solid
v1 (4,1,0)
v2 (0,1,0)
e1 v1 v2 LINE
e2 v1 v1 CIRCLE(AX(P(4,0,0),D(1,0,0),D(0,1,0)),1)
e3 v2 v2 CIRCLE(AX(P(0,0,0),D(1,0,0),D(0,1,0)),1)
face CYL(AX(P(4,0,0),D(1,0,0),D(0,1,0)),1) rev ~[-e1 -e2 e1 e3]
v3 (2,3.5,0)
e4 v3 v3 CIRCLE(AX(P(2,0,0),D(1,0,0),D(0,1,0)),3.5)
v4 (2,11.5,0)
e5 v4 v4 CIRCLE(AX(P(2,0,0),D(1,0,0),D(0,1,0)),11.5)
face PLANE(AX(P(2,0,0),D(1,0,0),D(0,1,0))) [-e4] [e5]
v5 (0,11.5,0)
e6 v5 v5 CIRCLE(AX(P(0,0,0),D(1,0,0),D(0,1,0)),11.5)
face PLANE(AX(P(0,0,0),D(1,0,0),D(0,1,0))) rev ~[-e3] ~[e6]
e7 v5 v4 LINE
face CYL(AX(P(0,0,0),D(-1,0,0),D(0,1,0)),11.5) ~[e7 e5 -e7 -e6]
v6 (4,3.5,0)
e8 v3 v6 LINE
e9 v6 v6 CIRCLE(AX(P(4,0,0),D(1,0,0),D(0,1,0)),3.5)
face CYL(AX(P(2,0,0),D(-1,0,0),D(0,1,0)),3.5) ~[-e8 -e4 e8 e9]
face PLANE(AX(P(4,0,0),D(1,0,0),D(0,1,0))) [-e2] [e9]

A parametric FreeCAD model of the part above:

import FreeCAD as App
import Part
import Sketcher

doc = App.newDocument("Part")
params = doc.addObject("Spreadsheet::Sheet", "Params")
for row, (alias, value) in enumerate([
    ("sketch1_diameter", "23 mm"),
    ("pad1_length", "2 mm"),
    ("sketch2_diameter", "7 mm"),
    ("pad2_length", "2 mm"),
    ("sketch3_diameter", "2 mm"),
], start=1):
    params.set(f"A{row}", alias)
    params.set(f"B{row}", "=" + value)
    params.setAlias(f"B{row}", alias)

body = doc.addObject("PartDesign::Body", "Body")

# Sketch on YZ plane
sketch1 = doc.addObject("Sketcher::SketchObject", "Sketch")
body.addObject(sketch1)
sketch1.AttachmentSupport = (doc.YZ_Plane, [""])
sketch1.MapMode = "FlatFace"
sketch1.addGeometry(Part.Circle(App.Vector(0, 0, 0), App.Vector(0, 0, 1), 12), False)
sketch1.addConstraint(Sketcher.Constraint("Coincident", 0, 3, -1, 1))
sketch1.addConstraint(Sketcher.Constraint("Diameter", 0, 23.0))
sketch1.setExpression("Constraints[1]", "Params.sketch1_diameter")
pad1 = doc.addObject("PartDesign::Pad", "Pad")
body.addObject(pad1)
pad1.Profile = sketch1
pad1.setExpression("Length", "Params.pad1_length")

# Sketch on YZ plane
sketch2 = doc.addObject("Sketcher::SketchObject", "Sketch001")
body.addObject(sketch2)
sketch2.AttachmentSupport = (doc.YZ_Plane, [""])
sketch2.MapMode = "FlatFace"
sketch2.AttachmentOffset = App.Placement(App.Vector(0, 0, 2), App.Rotation())
sketch2.addGeometry(Part.Circle(App.Vector(0, 0, 0), App.Vector(0, 0, 1), 3.5), False)
sketch2.addConstraint(Sketcher.Constraint("Coincident", 0, 3, -1, 1))
sketch2.addConstraint(Sketcher.Constraint("Diameter", 0, 7.0))
sketch2.setExpression("Constraints[1]", "Params.sketch2_diameter")
pad2 = doc.addObject("PartDesign::Pad", "Pad001")
body.addObject(pad2)
pad2.Profile = sketch2
pad2.setExpression("Length", "Params.pad2_length")

# Sketch on YZ plane
sketch3 = doc.addObject("Sketcher::SketchObject", "Sketch002")
body.addObject(sketch3)
sketch3.AttachmentSupport = (doc.YZ_Plane, [""])
sketch3.MapMode = "FlatFace"
sketch3.AttachmentOffset = App.Placement(App.Vector(0, 0, 4), App.Rotation())
sketch3.addGeometry(Part.Circle(App.Vector(0, 0, 0), App.Vector(0, 0, 1), 1), False)
sketch3.addConstraint(Sketcher.Constraint("Coincident", 0, 3, -1, 1))
sketch3.addConstraint(Sketcher.Constraint("Diameter", 0, 2.0))
sketch3.setExpression("Constraints[1]", "Params.sketch3_diameter")
pocket1 = doc.addObject("PartDesign::Pocket", "Pocket")
body.addObject(pocket1)
pocket1.Profile = sketch3
pocket1.Type = "ThroughAll"

doc.recompute()
